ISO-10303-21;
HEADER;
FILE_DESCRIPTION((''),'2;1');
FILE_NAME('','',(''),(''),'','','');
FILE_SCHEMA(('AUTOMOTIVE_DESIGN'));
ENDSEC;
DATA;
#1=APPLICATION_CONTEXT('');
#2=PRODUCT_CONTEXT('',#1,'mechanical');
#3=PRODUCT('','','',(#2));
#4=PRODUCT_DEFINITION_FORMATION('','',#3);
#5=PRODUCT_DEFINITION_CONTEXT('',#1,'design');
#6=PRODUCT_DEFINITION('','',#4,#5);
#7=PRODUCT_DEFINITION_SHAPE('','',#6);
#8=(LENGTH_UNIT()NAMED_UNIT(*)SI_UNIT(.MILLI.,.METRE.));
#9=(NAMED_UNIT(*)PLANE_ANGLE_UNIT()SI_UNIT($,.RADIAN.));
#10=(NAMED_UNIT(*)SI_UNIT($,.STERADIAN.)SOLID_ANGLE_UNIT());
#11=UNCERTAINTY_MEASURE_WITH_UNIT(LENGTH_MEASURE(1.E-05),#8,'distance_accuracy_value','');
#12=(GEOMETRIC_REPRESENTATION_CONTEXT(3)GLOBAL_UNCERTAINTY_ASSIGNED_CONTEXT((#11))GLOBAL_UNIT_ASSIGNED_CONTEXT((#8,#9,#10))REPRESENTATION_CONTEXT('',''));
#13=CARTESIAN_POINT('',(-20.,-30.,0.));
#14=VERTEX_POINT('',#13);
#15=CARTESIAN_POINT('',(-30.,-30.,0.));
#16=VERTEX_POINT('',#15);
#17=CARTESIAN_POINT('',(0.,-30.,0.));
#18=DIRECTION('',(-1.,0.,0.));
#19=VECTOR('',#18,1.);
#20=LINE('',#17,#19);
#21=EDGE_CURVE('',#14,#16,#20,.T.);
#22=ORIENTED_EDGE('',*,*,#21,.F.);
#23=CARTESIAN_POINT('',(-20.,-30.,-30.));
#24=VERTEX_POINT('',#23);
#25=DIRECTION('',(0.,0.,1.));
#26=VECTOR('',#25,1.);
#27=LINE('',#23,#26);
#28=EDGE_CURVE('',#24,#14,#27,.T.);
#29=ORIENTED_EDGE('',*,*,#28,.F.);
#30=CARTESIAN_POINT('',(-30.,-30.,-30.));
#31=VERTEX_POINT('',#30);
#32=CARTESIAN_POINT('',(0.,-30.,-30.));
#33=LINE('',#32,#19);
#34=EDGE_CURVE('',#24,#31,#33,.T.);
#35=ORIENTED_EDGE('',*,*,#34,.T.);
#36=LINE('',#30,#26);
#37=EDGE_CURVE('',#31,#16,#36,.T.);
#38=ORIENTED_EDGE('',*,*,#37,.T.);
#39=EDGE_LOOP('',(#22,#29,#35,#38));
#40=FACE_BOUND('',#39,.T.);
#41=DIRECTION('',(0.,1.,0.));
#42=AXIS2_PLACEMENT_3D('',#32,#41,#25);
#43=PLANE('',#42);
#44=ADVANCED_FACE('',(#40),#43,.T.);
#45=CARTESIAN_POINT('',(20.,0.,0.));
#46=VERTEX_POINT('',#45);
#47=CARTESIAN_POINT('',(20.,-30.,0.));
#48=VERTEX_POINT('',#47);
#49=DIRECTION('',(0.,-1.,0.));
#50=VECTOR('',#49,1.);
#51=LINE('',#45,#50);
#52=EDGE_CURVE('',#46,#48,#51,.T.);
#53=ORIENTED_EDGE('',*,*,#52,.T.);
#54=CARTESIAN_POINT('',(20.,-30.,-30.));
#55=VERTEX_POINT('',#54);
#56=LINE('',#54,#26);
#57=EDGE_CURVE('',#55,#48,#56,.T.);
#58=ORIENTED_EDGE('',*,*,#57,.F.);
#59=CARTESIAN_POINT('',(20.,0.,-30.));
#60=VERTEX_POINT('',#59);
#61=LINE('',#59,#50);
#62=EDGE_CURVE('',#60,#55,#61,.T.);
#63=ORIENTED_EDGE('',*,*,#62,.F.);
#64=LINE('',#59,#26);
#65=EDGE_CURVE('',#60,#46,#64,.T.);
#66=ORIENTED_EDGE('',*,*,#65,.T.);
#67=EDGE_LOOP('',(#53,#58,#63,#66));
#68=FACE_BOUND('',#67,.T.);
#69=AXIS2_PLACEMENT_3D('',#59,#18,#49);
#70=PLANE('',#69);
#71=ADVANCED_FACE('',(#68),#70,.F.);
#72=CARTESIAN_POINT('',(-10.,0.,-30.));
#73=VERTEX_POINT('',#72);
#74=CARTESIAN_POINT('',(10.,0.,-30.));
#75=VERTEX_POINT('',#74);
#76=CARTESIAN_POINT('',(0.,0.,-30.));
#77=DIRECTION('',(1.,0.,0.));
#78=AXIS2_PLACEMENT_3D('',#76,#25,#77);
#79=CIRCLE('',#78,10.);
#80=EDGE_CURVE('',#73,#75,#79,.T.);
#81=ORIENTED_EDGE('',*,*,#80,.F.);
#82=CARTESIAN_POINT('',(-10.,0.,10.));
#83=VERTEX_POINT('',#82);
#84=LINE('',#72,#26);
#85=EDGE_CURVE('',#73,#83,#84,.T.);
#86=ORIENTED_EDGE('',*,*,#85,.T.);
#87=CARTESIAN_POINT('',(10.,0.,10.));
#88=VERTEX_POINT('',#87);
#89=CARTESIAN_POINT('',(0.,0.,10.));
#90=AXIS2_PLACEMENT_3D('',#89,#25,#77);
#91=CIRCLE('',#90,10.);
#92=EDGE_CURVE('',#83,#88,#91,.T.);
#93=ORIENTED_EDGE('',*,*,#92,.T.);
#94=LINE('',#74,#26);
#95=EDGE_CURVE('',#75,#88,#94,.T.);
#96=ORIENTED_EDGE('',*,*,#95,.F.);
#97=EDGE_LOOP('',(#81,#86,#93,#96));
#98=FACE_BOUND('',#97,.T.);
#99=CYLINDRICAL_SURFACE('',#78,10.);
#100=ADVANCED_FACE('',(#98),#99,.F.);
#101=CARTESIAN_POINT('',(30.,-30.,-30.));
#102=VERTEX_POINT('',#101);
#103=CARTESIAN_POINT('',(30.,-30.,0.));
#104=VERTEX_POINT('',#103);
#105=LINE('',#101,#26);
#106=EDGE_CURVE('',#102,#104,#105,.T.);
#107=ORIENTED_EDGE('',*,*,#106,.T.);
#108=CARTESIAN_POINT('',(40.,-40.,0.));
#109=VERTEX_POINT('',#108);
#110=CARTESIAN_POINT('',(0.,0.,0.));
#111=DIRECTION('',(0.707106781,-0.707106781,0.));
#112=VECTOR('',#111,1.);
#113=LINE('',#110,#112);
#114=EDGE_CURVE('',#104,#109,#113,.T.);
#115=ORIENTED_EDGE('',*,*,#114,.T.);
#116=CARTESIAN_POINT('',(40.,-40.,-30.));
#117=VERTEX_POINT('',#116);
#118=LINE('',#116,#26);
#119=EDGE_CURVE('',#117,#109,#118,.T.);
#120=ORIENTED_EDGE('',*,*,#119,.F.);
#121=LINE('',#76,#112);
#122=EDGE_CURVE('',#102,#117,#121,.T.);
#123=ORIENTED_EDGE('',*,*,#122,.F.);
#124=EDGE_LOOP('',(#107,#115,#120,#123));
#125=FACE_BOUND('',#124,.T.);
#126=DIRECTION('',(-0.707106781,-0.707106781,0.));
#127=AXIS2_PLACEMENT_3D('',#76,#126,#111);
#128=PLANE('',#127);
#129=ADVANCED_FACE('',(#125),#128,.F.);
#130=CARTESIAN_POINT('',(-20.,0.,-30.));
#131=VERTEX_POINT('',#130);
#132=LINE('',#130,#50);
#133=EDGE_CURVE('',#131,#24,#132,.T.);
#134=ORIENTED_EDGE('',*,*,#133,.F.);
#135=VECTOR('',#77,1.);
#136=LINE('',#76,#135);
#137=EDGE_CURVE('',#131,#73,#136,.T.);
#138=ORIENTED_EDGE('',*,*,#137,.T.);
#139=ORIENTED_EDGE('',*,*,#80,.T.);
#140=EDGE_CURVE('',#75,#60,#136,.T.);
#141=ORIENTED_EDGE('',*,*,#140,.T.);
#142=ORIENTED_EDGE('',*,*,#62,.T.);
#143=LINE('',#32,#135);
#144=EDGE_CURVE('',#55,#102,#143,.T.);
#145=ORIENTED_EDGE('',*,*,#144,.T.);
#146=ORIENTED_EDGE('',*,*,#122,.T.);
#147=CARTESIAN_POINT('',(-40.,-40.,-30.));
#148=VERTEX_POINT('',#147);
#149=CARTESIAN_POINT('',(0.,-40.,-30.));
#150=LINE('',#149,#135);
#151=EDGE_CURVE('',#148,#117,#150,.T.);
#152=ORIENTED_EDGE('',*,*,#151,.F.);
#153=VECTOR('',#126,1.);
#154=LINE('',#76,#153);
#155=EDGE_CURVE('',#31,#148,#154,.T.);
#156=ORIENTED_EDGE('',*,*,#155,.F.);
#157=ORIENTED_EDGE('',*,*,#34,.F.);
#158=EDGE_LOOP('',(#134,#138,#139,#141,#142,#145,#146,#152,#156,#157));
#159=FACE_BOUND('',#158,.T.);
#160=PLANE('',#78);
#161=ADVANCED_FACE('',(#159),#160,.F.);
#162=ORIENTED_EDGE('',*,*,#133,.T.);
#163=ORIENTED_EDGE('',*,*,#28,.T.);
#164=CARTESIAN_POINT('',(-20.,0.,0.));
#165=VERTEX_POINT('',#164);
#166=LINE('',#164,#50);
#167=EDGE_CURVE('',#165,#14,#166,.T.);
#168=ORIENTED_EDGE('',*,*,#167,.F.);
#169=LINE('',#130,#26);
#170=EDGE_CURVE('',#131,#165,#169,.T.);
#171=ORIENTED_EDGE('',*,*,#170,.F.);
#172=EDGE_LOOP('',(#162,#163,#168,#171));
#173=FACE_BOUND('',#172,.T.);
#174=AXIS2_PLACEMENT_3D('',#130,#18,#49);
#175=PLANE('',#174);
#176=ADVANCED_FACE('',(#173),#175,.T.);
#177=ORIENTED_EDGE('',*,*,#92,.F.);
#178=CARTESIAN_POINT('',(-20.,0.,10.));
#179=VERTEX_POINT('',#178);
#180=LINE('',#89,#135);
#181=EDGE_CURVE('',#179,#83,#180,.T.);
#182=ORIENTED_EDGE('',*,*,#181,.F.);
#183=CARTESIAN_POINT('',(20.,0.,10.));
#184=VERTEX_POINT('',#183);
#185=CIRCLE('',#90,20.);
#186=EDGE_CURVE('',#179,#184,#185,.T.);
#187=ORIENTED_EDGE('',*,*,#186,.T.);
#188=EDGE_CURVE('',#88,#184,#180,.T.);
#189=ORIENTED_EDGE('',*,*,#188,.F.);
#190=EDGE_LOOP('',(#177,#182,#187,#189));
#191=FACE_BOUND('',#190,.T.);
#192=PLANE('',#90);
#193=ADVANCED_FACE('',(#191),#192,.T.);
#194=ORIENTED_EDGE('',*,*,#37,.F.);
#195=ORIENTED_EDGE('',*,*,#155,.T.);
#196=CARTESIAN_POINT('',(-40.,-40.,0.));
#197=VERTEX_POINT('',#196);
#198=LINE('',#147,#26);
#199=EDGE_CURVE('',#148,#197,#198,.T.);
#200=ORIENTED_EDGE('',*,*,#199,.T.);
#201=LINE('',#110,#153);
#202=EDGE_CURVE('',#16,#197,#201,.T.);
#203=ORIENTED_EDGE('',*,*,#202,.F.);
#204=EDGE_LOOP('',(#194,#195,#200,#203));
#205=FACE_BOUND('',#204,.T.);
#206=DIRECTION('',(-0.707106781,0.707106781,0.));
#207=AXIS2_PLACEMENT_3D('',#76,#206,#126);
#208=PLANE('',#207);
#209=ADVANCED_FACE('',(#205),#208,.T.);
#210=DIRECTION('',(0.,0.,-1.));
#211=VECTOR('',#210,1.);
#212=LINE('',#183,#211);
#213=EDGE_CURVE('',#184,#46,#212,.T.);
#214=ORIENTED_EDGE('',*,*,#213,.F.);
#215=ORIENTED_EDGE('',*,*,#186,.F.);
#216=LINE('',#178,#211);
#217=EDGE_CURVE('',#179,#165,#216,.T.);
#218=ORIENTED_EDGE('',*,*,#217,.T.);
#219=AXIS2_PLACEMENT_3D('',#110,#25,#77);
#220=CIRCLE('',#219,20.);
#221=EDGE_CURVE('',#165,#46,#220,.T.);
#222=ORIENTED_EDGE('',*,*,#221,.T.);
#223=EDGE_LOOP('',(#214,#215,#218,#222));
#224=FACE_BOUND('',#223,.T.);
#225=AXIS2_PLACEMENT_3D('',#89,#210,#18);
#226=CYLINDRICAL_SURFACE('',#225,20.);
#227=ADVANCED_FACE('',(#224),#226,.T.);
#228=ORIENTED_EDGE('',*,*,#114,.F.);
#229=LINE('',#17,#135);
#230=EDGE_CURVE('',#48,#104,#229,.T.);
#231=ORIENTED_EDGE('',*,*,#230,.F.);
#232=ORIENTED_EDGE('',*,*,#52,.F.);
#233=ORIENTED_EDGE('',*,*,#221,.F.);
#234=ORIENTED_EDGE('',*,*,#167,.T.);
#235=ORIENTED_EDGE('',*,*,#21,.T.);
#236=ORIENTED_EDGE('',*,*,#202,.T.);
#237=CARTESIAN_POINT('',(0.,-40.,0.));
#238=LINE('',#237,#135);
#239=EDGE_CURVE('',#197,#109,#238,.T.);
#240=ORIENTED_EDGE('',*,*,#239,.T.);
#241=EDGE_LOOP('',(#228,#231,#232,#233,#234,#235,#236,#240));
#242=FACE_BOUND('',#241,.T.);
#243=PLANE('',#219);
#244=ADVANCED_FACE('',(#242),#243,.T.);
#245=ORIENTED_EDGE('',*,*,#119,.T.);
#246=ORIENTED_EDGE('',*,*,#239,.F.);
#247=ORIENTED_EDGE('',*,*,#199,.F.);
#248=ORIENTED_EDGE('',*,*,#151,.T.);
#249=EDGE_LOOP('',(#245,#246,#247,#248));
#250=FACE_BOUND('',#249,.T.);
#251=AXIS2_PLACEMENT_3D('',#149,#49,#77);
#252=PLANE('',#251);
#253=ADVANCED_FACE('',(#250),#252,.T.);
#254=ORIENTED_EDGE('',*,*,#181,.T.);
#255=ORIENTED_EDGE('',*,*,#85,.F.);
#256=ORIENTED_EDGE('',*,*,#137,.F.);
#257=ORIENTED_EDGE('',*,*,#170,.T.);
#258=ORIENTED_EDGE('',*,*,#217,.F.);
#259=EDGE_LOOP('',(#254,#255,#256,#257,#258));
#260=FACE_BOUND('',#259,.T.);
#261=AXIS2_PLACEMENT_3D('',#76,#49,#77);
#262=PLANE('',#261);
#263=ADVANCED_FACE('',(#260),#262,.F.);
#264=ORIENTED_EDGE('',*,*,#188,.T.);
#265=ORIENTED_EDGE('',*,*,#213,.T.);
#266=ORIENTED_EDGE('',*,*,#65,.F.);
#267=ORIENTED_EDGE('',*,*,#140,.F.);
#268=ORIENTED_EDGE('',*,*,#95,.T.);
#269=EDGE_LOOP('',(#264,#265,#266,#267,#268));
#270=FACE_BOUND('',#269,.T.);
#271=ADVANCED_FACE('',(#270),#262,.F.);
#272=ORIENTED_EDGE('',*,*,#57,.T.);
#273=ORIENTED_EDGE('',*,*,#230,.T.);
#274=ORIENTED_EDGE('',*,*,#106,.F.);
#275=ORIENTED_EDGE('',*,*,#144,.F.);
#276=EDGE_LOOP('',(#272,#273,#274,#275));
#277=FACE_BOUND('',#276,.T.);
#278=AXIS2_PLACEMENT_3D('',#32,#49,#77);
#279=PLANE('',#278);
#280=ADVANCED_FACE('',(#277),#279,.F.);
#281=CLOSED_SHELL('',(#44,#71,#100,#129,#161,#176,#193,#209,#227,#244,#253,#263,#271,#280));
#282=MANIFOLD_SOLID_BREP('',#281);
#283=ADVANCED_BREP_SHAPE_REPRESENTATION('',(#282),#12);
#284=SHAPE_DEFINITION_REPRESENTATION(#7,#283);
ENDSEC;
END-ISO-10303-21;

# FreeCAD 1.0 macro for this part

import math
import FreeCAD as App
import Part
import Sketcher
Q = App.Units.Quantity

doc = App.newDocument("Part")
params = doc.addObject("Spreadsheet::Sheet", "Params")
for row, (alias, value) in enumerate([
    ("sketch1_radius", "10 mm"),
    ("sketch1_width", "10 mm"),
    ("sketch1_width2", "80 mm"),
    ("sketch1_height", "30 mm"),
    ("pad1_length", "30 mm"),
    ("sketch2_radius", "20 mm"),
    ("sketch2_radius2", "10 mm"),
    ("pad2_length", "10 mm"),
], start=1):
    params.set(f"A{row}", alias)
    params.set(f"B{row}", "=" + value)
    params.setAlias(f"B{row}", alias)

body = doc.addObject("PartDesign::Body", "Body")

sketch1 = body.newObject("Sketcher::SketchObject", "Sketch")
sketch1.AttachmentSupport = (doc.getObject("XY_Plane"), [""])
sketch1.MapMode = "FlatFace"
sketch1.addGeometry(Part.LineSegment(App.Vector(-10, 0, 0), App.Vector(-20, 0, 0)), False)
sketch1.addGeometry(Part.LineSegment(App.Vector(-20, 0, 0), App.Vector(-20, -30, 0)), False)
sketch1.addGeometry(Part.LineSegment(App.Vector(-20, -30, 0), App.Vector(-30, -30, 0)), False)
sketch1.addGeometry(Part.LineSegment(App.Vector(-30, -30, 0), App.Vector(-40, -40, 0)), False)
sketch1.addGeometry(Part.LineSegment(App.Vector(-40, -40, 0), App.Vector(40, -40, 0)), False)
sketch1.addGeometry(Part.LineSegment(App.Vector(40, -40, 0), App.Vector(30, -30, 0)), False)
sketch1.addGeometry(Part.LineSegment(App.Vector(30, -30, 0), App.Vector(20, -30, 0)), False)
sketch1.addGeometry(Part.LineSegment(App.Vector(20, -30, 0), App.Vector(20, 0, 0)), False)
sketch1.addGeometry(Part.LineSegment(App.Vector(20, 0, 0), App.Vector(10, 0, 0)), False)
sketch1.addGeometry(Part.ArcOfCircle(Part.Circle(App.Vector(0, 0, 0), App.Vector(0, 0, 1), 10), math.radians(180), math.radians(360)), False)
sketch1.addConstraint(Sketcher.Constraint("Coincident", 0, 2, 1, 1))
sketch1.addConstraint(Sketcher.Constraint("Coincident", 1, 2, 2, 1))
sketch1.addConstraint(Sketcher.Constraint("Coincident", 2, 2, 3, 1))
sketch1.addConstraint(Sketcher.Constraint("Coincident", 3, 2, 4, 1))
sketch1.addConstraint(Sketcher.Constraint("Coincident", 4, 2, 5, 1))
sketch1.addConstraint(Sketcher.Constraint("Coincident", 5, 2, 6, 1))
sketch1.addConstraint(Sketcher.Constraint("Coincident", 6, 2, 7, 1))
sketch1.addConstraint(Sketcher.Constraint("Coincident", 7, 2, 8, 1))
sketch1.addConstraint(Sketcher.Constraint("Coincident", 8, 2, 9, 2))
sketch1.addConstraint(Sketcher.Constraint("Coincident", 9, 1, 0, 1))
sketch1.addConstraint(Sketcher.Constraint("Horizontal", 0))
sketch1.addConstraint(Sketcher.Constraint("Vertical", 1))
sketch1.addConstraint(Sketcher.Constraint("Horizontal", 2))
sketch1.addConstraint(Sketcher.Constraint("Horizontal", 4))
sketch1.addConstraint(Sketcher.Constraint("Horizontal", 6))
sketch1.addConstraint(Sketcher.Constraint("Vertical", 7))
sketch1.addConstraint(Sketcher.Constraint("Horizontal", 8))
sketch1.addConstraint(Sketcher.Constraint("Coincident", 9, 3, -1, 1))
sketch1.addConstraint(Sketcher.Constraint("Symmetric", 0, 2, 7, 2, -1, 1))
sketch1.addConstraint(Sketcher.Constraint("Symmetric", 2, 2, 5, 2, -2))
sketch1.addConstraint(Sketcher.Constraint("PointOnObject", 0, 2, -1))
sketch1.addConstraint(Sketcher.Constraint("Perpendicular", 3, 5))
sketch1.addConstraint(Sketcher.Constraint("Equal", 0, 2))
sketch1.addConstraint(Sketcher.Constraint("Equal", 3, 5))
sketch1.addConstraint(Sketcher.Constraint("Radius", 9, Q("10 mm")))
sketch1.addConstraint(Sketcher.Constraint("DistanceX", 0, 2, 0, 1, Q("10 mm")))
sketch1.addConstraint(Sketcher.Constraint("DistanceX", 4, 1, 4, 2, Q("80 mm")))
sketch1.addConstraint(Sketcher.Constraint("DistanceY", 1, 2, 1, 1, Q("30 mm")))
sketch1.setExpression("Constraints[24]", "Params.sketch1_radius")
sketch1.setExpression("Constraints[25]", "Params.sketch1_width")
sketch1.setExpression("Constraints[26]", "Params.sketch1_width2")
sketch1.setExpression("Constraints[27]", "Params.sketch1_height")
pad1 = body.newObject("PartDesign::Pad", "Pad")
pad1.Profile = sketch1
pad1.setExpression("Length", "Params.pad1_length")
pad1.Reversed = True

sketch2 = body.newObject("Sketcher::SketchObject", "Sketch001")
sketch2.AttachmentSupport = (doc.getObject("XY_Plane"), [""])
sketch2.MapMode = "FlatFace"
sketch2.AttachmentOffset = App.Placement(App.Vector(0, 0, 10), App.Rotation())
sketch2.addGeometry(Part.LineSegment(App.Vector(-10, 0, 0), App.Vector(-20, 0, 0)), False)
sketch2.addGeometry(Part.ArcOfCircle(Part.Circle(App.Vector(0, 0, 0), App.Vector(0, 0, 1), 20), math.radians(180), math.radians(360)), False)
sketch2.addGeometry(Part.LineSegment(App.Vector(20, 0, 0), App.Vector(10, 0, 0)), False)
sketch2.addGeometry(Part.ArcOfCircle(Part.Circle(App.Vector(0, 0, 0), App.Vector(0, 0, 1), 10), math.radians(180), math.radians(360)), False)
sketch2.addConstraint(Sketcher.Constraint("Coincident", 0, 2, 1, 1))
sketch2.addConstraint(Sketcher.Constraint("Coincident", 1, 2, 2, 1))
sketch2.addConstraint(Sketcher.Constraint("Coincident", 2, 2, 3, 2))
sketch2.addConstraint(Sketcher.Constraint("Coincident", 3, 1, 0, 1))
sketch2.addConstraint(Sketcher.Constraint("Horizontal", 0))
sketch2.addConstraint(Sketcher.Constraint("Horizontal", 2))
sketch2.addConstraint(Sketcher.Constraint("Coincident", 1, 3, -1, 1))
sketch2.addConstraint(Sketcher.Constraint("Coincident", 3, 3, -1, 1))
sketch2.addConstraint(Sketcher.Constraint("PointOnObject", 0, 2, -1))
sketch2.addConstraint(Sketcher.Constraint("PointOnObject", 1, 2, -1))
sketch2.addConstraint(Sketcher.Constraint("Radius", 1, Q("20 mm")))
sketch2.addConstraint(Sketcher.Constraint("Radius", 3, Q("10 mm")))
sketch2.setExpression("Constraints[10]", "Params.sketch2_radius")
sketch2.setExpression("Constraints[11]", "Params.sketch2_radius2")
pad2 = body.newObject("PartDesign::Pad", "Pad001")
pad2.Profile = sketch2
pad2.setExpression("Length", "Params.pad2_length")
pad2.Reversed = True

doc.recompute()
